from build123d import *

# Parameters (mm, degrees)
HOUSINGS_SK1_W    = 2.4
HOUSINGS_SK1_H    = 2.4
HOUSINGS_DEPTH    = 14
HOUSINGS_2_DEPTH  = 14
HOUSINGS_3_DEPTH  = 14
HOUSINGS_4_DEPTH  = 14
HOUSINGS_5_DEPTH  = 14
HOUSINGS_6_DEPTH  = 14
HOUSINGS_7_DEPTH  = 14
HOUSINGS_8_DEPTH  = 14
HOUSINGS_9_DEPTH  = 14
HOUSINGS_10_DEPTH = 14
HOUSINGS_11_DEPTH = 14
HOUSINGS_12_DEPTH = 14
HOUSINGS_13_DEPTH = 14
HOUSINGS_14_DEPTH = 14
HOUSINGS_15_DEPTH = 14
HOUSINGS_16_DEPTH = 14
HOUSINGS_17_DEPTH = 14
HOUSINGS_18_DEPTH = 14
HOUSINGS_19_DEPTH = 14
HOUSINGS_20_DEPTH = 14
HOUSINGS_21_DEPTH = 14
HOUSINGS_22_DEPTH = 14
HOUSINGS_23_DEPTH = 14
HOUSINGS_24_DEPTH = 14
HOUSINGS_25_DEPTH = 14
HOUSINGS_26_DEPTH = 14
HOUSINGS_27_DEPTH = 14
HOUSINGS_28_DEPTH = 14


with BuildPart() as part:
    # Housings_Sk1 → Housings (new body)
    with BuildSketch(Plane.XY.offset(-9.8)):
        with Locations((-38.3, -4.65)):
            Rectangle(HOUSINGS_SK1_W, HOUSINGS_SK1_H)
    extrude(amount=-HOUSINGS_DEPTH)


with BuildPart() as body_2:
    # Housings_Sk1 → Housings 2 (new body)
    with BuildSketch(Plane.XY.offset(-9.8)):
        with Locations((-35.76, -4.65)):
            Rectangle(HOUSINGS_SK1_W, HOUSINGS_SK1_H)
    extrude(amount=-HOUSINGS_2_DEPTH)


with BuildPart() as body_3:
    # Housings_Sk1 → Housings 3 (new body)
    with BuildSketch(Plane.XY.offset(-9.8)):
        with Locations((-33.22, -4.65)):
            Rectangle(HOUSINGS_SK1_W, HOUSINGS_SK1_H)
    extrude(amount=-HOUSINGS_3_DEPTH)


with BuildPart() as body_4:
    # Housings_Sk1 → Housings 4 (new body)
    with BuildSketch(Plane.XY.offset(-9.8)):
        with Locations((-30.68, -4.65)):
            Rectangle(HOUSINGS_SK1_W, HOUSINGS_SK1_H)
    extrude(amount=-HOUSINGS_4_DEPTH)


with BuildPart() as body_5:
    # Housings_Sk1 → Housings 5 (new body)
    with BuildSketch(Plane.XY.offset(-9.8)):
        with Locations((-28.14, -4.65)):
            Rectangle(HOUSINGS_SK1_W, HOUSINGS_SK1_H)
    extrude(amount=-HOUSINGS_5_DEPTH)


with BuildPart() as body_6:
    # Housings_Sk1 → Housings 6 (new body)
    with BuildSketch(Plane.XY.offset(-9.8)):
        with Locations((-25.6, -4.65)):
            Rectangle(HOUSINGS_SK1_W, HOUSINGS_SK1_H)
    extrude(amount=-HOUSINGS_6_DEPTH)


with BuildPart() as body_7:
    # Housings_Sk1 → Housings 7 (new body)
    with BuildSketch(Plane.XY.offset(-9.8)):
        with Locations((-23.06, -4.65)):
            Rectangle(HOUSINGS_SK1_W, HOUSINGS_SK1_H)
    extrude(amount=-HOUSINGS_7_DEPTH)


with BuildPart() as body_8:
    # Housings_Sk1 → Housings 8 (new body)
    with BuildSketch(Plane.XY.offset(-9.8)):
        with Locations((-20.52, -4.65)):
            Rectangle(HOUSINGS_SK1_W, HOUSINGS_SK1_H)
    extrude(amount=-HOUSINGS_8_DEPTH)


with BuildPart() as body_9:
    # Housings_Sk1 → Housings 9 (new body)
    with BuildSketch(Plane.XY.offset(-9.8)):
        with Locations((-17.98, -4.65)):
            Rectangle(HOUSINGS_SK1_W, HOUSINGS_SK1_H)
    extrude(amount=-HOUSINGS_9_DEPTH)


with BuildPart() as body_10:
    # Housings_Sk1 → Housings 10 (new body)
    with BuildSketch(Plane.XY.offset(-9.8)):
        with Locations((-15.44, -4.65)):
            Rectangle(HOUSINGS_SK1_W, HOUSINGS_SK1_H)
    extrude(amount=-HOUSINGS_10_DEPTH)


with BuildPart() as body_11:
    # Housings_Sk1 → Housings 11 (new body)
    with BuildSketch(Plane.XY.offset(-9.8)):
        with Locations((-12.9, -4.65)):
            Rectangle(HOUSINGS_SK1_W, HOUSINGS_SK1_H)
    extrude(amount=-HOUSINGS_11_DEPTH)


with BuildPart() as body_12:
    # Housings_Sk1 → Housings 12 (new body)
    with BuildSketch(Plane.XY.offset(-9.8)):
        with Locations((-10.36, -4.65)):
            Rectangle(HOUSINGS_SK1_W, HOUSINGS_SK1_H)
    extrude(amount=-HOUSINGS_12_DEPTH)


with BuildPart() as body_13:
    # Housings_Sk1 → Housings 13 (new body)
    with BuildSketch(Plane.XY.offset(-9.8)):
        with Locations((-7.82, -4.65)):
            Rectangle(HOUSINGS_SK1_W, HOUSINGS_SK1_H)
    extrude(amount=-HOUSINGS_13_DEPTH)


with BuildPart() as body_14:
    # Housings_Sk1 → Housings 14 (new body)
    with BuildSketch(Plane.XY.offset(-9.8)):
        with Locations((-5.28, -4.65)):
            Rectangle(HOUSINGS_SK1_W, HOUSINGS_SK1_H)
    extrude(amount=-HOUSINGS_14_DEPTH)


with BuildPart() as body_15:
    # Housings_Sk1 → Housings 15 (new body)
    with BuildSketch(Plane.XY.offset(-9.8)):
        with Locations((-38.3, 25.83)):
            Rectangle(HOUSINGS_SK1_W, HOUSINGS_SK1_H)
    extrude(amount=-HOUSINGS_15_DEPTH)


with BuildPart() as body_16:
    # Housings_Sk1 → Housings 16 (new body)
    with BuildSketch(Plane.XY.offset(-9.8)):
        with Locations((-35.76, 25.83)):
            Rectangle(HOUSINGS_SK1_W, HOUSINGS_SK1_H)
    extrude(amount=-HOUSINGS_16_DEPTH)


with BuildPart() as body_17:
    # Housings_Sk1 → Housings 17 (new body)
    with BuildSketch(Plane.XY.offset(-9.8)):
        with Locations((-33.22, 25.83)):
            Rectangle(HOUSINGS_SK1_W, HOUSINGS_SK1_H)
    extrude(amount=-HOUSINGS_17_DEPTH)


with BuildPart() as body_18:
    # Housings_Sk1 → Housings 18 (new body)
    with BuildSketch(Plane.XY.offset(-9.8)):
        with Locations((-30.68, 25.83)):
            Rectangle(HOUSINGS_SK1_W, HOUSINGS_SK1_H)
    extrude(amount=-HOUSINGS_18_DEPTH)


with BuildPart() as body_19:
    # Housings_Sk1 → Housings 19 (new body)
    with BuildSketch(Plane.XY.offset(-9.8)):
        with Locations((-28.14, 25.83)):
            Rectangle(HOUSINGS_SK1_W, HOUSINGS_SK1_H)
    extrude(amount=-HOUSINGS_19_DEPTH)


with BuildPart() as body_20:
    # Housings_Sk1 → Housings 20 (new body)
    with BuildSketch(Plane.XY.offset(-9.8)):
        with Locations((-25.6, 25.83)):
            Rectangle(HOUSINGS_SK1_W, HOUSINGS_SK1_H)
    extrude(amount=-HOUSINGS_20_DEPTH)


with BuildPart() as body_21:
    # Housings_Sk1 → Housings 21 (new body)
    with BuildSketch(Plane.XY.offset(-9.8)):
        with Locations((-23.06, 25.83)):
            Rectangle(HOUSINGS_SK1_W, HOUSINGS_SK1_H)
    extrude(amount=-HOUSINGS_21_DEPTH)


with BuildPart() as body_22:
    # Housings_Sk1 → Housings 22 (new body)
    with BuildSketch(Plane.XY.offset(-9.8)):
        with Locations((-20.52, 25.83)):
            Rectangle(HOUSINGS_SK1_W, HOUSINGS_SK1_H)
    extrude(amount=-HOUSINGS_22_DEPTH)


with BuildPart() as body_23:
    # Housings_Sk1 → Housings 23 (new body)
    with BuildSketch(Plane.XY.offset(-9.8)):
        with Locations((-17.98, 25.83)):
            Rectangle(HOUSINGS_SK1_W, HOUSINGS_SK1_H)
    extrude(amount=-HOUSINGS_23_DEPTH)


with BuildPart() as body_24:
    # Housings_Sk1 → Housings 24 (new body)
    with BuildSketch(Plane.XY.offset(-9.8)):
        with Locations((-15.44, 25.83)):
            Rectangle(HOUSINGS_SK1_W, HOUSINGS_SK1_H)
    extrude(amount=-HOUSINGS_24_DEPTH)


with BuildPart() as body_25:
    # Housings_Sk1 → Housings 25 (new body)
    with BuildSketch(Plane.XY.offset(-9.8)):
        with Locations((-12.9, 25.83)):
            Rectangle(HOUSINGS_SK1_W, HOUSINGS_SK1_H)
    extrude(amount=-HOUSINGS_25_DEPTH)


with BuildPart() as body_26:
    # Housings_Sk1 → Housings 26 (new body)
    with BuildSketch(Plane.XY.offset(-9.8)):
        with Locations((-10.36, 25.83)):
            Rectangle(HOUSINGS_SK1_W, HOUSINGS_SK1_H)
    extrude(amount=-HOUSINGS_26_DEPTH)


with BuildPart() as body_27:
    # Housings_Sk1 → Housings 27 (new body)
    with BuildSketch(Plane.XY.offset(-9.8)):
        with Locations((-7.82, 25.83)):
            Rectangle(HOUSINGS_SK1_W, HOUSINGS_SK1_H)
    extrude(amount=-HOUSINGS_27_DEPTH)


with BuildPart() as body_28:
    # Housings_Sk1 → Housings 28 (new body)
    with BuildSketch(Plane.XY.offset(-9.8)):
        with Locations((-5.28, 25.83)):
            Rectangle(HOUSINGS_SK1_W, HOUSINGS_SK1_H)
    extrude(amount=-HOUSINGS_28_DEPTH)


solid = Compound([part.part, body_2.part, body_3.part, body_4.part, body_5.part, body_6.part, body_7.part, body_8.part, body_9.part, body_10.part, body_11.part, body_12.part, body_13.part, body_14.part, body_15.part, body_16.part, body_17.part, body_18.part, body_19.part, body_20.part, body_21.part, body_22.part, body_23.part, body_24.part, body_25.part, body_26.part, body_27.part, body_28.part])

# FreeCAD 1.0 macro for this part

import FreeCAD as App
import Part
import Sketcher
from FreeCAD import Vector
Q = App.Units.Quantity


def add_polygon(sketch, points):
    """Adds a closed chain of lines whose ends are joined by coincident constraints."""
    first, n = sketch.GeometryCount, len(points)
    for a, b in zip(points, points[1:] + points[:1]):
        sketch.addGeometry(Part.LineSegment(App.Vector(*a, 0), App.Vector(*b, 0)), False)
    for i in range(n):
        sketch.addConstraint(Sketcher.Constraint("Coincident", first + i, 2, first + (i + 1) % n, 1))

doc = App.newDocument("Part")
body = doc.addObject("PartDesign::Body", "Body")

# Sketch on XY plane
sketch1 = doc.addObject("Sketcher::SketchObject", "Sketch")
body.addObject(sketch1)
sketch1.AttachmentSupport = (doc.XY_Plane, [""])
sketch1.MapMode = "FlatFace"
sketch1.AttachmentOffset = App.Placement(Vector(0, 0, -9.8), App.Rotation())
add_polygon(sketch1, [(-39.5, -3.45), (-39.5, -5.85), (-37.1, -5.85), (-37.1, -3.45)])  # lines 0-3
sketch1.addConstraint([
    Sketcher.Constraint("Vertical", 0),
    Sketcher.Constraint("Horizontal", 1),
    Sketcher.Constraint("Vertical", 2),
    Sketcher.Constraint("Horizontal", 3),
    Sketcher.Constraint("Equal", 3, 0),
    Sketcher.Constraint("DistanceX", 1, 1, 1, 2, Q("2.4 mm")),
    Sketcher.Constraint("DistanceX", 0, 2, -1, 1, Q("39.5 mm")),
    Sketcher.Constraint("DistanceY", 0, 2, -1, 1, Q("5.85 mm")),
])
pad1 = doc.addObject("PartDesign::Pad", "Pad")
body.addObject(pad1)
pad1.Profile = sketch1
pad1.Length = 14
pad1.Reversed = True
body2 = doc.addObject("PartDesign::Body", "Body001")

# Sketch on XY plane
sketch2 = doc.addObject("Sketcher::SketchObject", "Sketch001")
body2.addObject(sketch2)
sketch2.AttachmentSupport = (doc.getObject("XY_Plane001"), [""])
sketch2.MapMode = "FlatFace"
sketch2.AttachmentOffset = App.Placement(Vector(0, 0, -9.8), App.Rotation())
add_polygon(sketch2, [(-36.96, -3.45), (-36.96, -5.85), (-34.56, -5.85), (-34.56, -3.45)])  # lines 0-3
sketch2.addConstraint([
    Sketcher.Constraint("Vertical", 0),
    Sketcher.Constraint("Horizontal", 1),
    Sketcher.Constraint("Vertical", 2),
    Sketcher.Constraint("Horizontal", 3),
    Sketcher.Constraint("Equal", 3, 0),
    Sketcher.Constraint("DistanceX", 1, 1, 1, 2, Q("2.4 mm")),
    Sketcher.Constraint("DistanceX", 0, 2, -1, 1, Q("36.96 mm")),
    Sketcher.Constraint("DistanceY", 0, 2, -1, 1, Q("5.85 mm")),
])
pad2 = doc.addObject("PartDesign::Pad", "Pad001")
body2.addObject(pad2)
pad2.Profile = sketch2
pad2.Length = 14
pad2.Reversed = True
body3 = doc.addObject("PartDesign::Body", "Body002")

# Sketch on XY plane
sketch3 = doc.addObject("Sketcher::SketchObject", "Sketch002")
body3.addObject(sketch3)
sketch3.AttachmentSupport = (doc.getObject("XY_Plane002"), [""])
sketch3.MapMode = "FlatFace"
sketch3.AttachmentOffset = App.Placement(Vector(0, 0, -9.8), App.Rotation())
add_polygon(sketch3, [(-34.42, -3.45), (-34.42, -5.85), (-32.02, -5.85), (-32.02, -3.45)])  # lines 0-3
sketch3.addConstraint([
    Sketcher.Constraint("Vertical", 0),
    Sketcher.Constraint("Horizontal", 1),
    Sketcher.Constraint("Vertical", 2),
    Sketcher.Constraint("Horizontal", 3),
    Sketcher.Constraint("Equal", 3, 0),
    Sketcher.Constraint("DistanceX", 1, 1, 1, 2, Q("2.4 mm")),
    Sketcher.Constraint("DistanceX", 0, 2, -1, 1, Q("34.42 mm")),
    Sketcher.Constraint("DistanceY", 0, 2, -1, 1, Q("5.85 mm")),
])
pad3 = doc.addObject("PartDesign::Pad", "Pad002")
body3.addObject(pad3)
pad3.Profile = sketch3
pad3.Length = 14
pad3.Reversed = True
body4 = doc.addObject("PartDesign::Body", "Body003")

# Sketch on XY plane
sketch4 = doc.addObject("Sketcher::SketchObject", "Sketch003")
body4.addObject(sketch4)
sketch4.AttachmentSupport = (doc.getObject("XY_Plane003"), [""])
sketch4.MapMode = "FlatFace"
sketch4.AttachmentOffset = App.Placement(Vector(0, 0, -9.8), App.Rotation())
add_polygon(sketch4, [(-31.88, -3.45), (-31.88, -5.85), (-29.48, -5.85), (-29.48, -3.45)])  # lines 0-3
sketch4.addConstraint([
    Sketcher.Constraint("Vertical", 0),
    Sketcher.Constraint("Horizontal", 1),
    Sketcher.Constraint("Vertical", 2),
    Sketcher.Constraint("Horizontal", 3),
    Sketcher.Constraint("Equal", 3, 0),
    Sketcher.Constraint("DistanceX", 1, 1, 1, 2, Q("2.4 mm")),
    Sketcher.Constraint("DistanceX", 0, 2, -1, 1, Q("31.88 mm")),
    Sketcher.Constraint("DistanceY", 0, 2, -1, 1, Q("5.85 mm")),
])
pad4 = doc.addObject("PartDesign::Pad", "Pad003")
body4.addObject(pad4)
pad4.Profile = sketch4
pad4.Length = 14
pad4.Reversed = True
body5 = doc.addObject("PartDesign::Body", "Body004")

# Sketch on XY plane
sketch5 = doc.addObject("Sketcher::SketchObject", "Sketch004")
body5.addObject(sketch5)
sketch5.AttachmentSupport = (doc.getObject("XY_Plane004"), [""])
sketch5.MapMode = "FlatFace"
sketch5.AttachmentOffset = App.Placement(Vector(0, 0, -9.8), App.Rotation())
add_polygon(sketch5, [(-29.34, -3.45), (-29.34, -5.85), (-26.94, -5.85), (-26.94, -3.45)])  # lines 0-3
sketch5.addConstraint([
    Sketcher.Constraint("Vertical", 0),
    Sketcher.Constraint("Horizontal", 1),
    Sketcher.Constraint("Vertical", 2),
    Sketcher.Constraint("Horizontal", 3),
    Sketcher.Constraint("Equal", 3, 0),
    Sketcher.Constraint("DistanceX", 1, 1, 1, 2, Q("2.4 mm")),
    Sketcher.Constraint("DistanceX", 0, 2, -1, 1, Q("29.34 mm")),
    Sketcher.Constraint("DistanceY", 0, 2, -1, 1, Q("5.85 mm")),
])
pad5 = doc.addObject("PartDesign::Pad", "Pad004")
body5.addObject(pad5)
pad5.Profile = sketch5
pad5.Length = 14
pad5.Reversed = True
body6 = doc.addObject("PartDesign::Body", "Body005")

# Sketch on XY plane
sketch6 = doc.addObject("Sketcher::SketchObject", "Sketch005")
body6.addObject(sketch6)
sketch6.AttachmentSupport = (doc.getObject("XY_Plane005"), [""])
sketch6.MapMode = "FlatFace"
sketch6.AttachmentOffset = App.Placement(Vector(0, 0, -9.8), App.Rotation())
add_polygon(sketch6, [(-26.8, -3.45), (-26.8, -5.85), (-24.4, -5.85), (-24.4, -3.45)])  # lines 0-3
sketch6.addConstraint([
    Sketcher.Constraint("Vertical", 0),
    Sketcher.Constraint("Horizontal", 1),
    Sketcher.Constraint("Vertical", 2),
    Sketcher.Constraint("Horizontal", 3),
    Sketcher.Constraint("Equal", 3, 0),
    Sketcher.Constraint("DistanceX", 1, 1, 1, 2, Q("2.4 mm")),
    Sketcher.Constraint("DistanceX", 0, 2, -1, 1, Q("26.8 mm")),
    Sketcher.Constraint("DistanceY", 0, 2, -1, 1, Q("5.85 mm")),
])
pad6 = doc.addObject("PartDesign::Pad", "Pad005")
body6.addObject(pad6)
pad6.Profile = sketch6
pad6.Length = 14
pad6.Reversed = True
body7 = doc.addObject("PartDesign::Body", "Body006")

# Sketch on XY plane
sketch7 = doc.addObject("Sketcher::SketchObject", "Sketch006")
body7.addObject(sketch7)
sketch7.AttachmentSupport = (doc.getObject("XY_Plane006"), [""])
sketch7.MapMode = "FlatFace"
sketch7.AttachmentOffset = App.Placement(Vector(0, 0, -9.8), App.Rotation())
add_polygon(sketch7, [(-24.26, -3.45), (-24.26, -5.85), (-21.86, -5.85), (-21.86, -3.45)])  # lines 0-3
sketch7.addConstraint([
    Sketcher.Constraint("Vertical", 0),
    Sketcher.Constraint("Horizontal", 1),
    Sketcher.Constraint("Vertical", 2),
    Sketcher.Constraint("Horizontal", 3),
    Sketcher.Constraint("Equal", 3, 0),
    Sketcher.Constraint("DistanceX", 1, 1, 1, 2, Q("2.4 mm")),
    Sketcher.Constraint("DistanceX", 0, 2, -1, 1, Q("24.26 mm")),
    Sketcher.Constraint("DistanceY", 0, 2, -1, 1, Q("5.85 mm")),
])
pad7 = doc.addObject("PartDesign::Pad", "Pad006")
body7.addObject(pad7)
pad7.Profile = sketch7
pad7.Length = 14
pad7.Reversed = True
body8 = doc.addObject("PartDesign::Body", "Body007")

# Sketch on XY plane
sketch8 = doc.addObject("Sketcher::SketchObject", "Sketch007")
body8.addObject(sketch8)
sketch8.AttachmentSupport = (doc.getObject("XY_Plane007"), [""])
sketch8.MapMode = "FlatFace"
sketch8.AttachmentOffset = App.Placement(Vector(0, 0, -9.8), App.Rotation())
add_polygon(sketch8, [(-21.72, -3.45), (-21.72, -5.85), (-19.32, -5.85), (-19.32, -3.45)])  # lines 0-3
sketch8.addConstraint([
    Sketcher.Constraint("Vertical", 0),
    Sketcher.Constraint("Horizontal", 1),
    Sketcher.Constraint("Vertical", 2),
    Sketcher.Constraint("Horizontal", 3),
    Sketcher.Constraint("Equal", 3, 0),
    Sketcher.Constraint("DistanceX", 1, 1, 1, 2, Q("2.4 mm")),
    Sketcher.Constraint("DistanceX", 0, 2, -1, 1, Q("21.72 mm")),
    Sketcher.Constraint("DistanceY", 0, 2, -1, 1, Q("5.85 mm")),
])
pad8 = doc.addObject("PartDesign::Pad", "Pad007")
body8.addObject(pad8)
pad8.Profile = sketch8
pad8.Length = 14
pad8.Reversed = True
body9 = doc.addObject("PartDesign::Body", "Body008")

# Sketch on XY plane
sketch9 = doc.addObject("Sketcher::SketchObject", "Sketch008")
body9.addObject(sketch9)
sketch9.AttachmentSupport = (doc.getObject("XY_Plane008"), [""])
sketch9.MapMode = "FlatFace"
sketch9.AttachmentOffset = App.Placement(Vector(0, 0, -9.8), App.Rotation())
add_polygon(sketch9, [(-19.18, -3.45), (-19.18, -5.85), (-16.78, -5.85), (-16.78, -3.45)])  # lines 0-3
sketch9.addConstraint([
    Sketcher.Constraint("Vertical", 0),
    Sketcher.Constraint("Horizontal", 1),
    Sketcher.Constraint("Vertical", 2),
    Sketcher.Constraint("Horizontal", 3),
    Sketcher.Constraint("Equal", 3, 0),
    Sketcher.Constraint("DistanceX", 1, 1, 1, 2, Q("2.4 mm")),
    Sketcher.Constraint("DistanceX", 0, 2, -1, 1, Q("19.18 mm")),
    Sketcher.Constraint("DistanceY", 0, 2, -1, 1, Q("5.85 mm")),
])
pad9 = doc.addObject("PartDesign::Pad", "Pad008")
body9.addObject(pad9)
pad9.Profile = sketch9
pad9.Length = 14
pad9.Reversed = True
body10 = doc.addObject("PartDesign::Body", "Body009")

# Sketch on XY plane
sketch10 = doc.addObject("Sketcher::SketchObject", "Sketch009")
body10.addObject(sketch10)
sketch10.AttachmentSupport = (doc.getObject("XY_Plane009"), [""])
sketch10.MapMode = "FlatFace"
sketch10.AttachmentOffset = App.Placement(Vector(0, 0, -9.8), App.Rotation())
add_polygon(sketch10, [(-16.64, -3.45), (-16.64, -5.85), (-14.24, -5.85), (-14.24, -3.45)])  # lines 0-3
sketch10.addConstraint([
    Sketcher.Constraint("Vertical", 0),
    Sketcher.Constraint("Horizontal", 1),
    Sketcher.Constraint("Vertical", 2),
    Sketcher.Constraint("Horizontal", 3),
    Sketcher.Constraint("Equal", 3, 0),
    Sketcher.Constraint("DistanceX", 1, 1, 1, 2, Q("2.4 mm")),
    Sketcher.Constraint("DistanceX", 0, 2, -1, 1, Q("16.64 mm")),
    Sketcher.Constraint("DistanceY", 0, 2, -1, 1, Q("5.85 mm")),
])
pad10 = doc.addObject("PartDesign::Pad", "Pad009")
body10.addObject(pad10)
pad10.Profile = sketch10
pad10.Length = 14
pad10.Reversed = True
body11 = doc.addObject("PartDesign::Body", "Body010")

# Sketch on XY plane
sketch11 = doc.addObject("Sketcher::SketchObject", "Sketch010")
body11.addObject(sketch11)
sketch11.AttachmentSupport = (doc.getObject("XY_Plane010"), [""])
sketch11.MapMode = "FlatFace"
sketch11.AttachmentOffset = App.Placement(Vector(0, 0, -9.8), App.Rotation())
add_polygon(sketch11, [(-14.1, -3.45), (-14.1, -5.85), (-11.7, -5.85), (-11.7, -3.45)])  # lines 0-3
sketch11.addConstraint([
    Sketcher.Constraint("Vertical", 0),
    Sketcher.Constraint("Horizontal", 1),
    Sketcher.Constraint("Vertical", 2),
    Sketcher.Constraint("Horizontal", 3),
    Sketcher.Constraint("Equal", 3, 0),
    Sketcher.Constraint("DistanceX", 1, 1, 1, 2, Q("2.4 mm")),
    Sketcher.Constraint("DistanceX", 0, 2, -1, 1, Q("14.1 mm")),
    Sketcher.Constraint("DistanceY", 0, 2, -1, 1, Q("5.85 mm")),
])
pad11 = doc.addObject("PartDesign::Pad", "Pad010")
body11.addObject(pad11)
pad11.Profile = sketch11
pad11.Length = 14
pad11.Reversed = True
body12 = doc.addObject("PartDesign::Body", "Body011")

# Sketch on XY plane
sketch12 = doc.addObject("Sketcher::SketchObject", "Sketch011")
body12.addObject(sketch12)
sketch12.AttachmentSupport = (doc.getObject("XY_Plane011"), [""])
sketch12.MapMode = "FlatFace"
sketch12.AttachmentOffset = App.Placement(Vector(0, 0, -9.8), App.Rotation())
add_polygon(sketch12, [(-11.56, -3.45), (-11.56, -5.85), (-9.16, -5.85), (-9.16, -3.45)])  # lines 0-3
sketch12.addConstraint([
    Sketcher.Constraint("Vertical", 0),
    Sketcher.Constraint("Horizontal", 1),
    Sketcher.Constraint("Vertical", 2),
    Sketcher.Constraint("Horizontal", 3),
    Sketcher.Constraint("Equal", 3, 0),
    Sketcher.Constraint("DistanceX", 1, 1, 1, 2, Q("2.4 mm")),
    Sketcher.Constraint("DistanceX", 0, 2, -1, 1, Q("11.56 mm")),
    Sketcher.Constraint("DistanceY", 0, 2, -1, 1, Q("5.85 mm")),
])
pad12 = doc.addObject("PartDesign::Pad", "Pad011")
body12.addObject(pad12)
pad12.Profile = sketch12
pad12.Length = 14
pad12.Reversed = True
body13 = doc.addObject("PartDesign::Body", "Body012")

# Sketch on XY plane
sketch13 = doc.addObject("Sketcher::SketchObject", "Sketch012")
body13.addObject(sketch13)
sketch13.AttachmentSupport = (doc.getObject("XY_Plane012"), [""])
sketch13.MapMode = "FlatFace"
sketch13.AttachmentOffset = App.Placement(Vector(0, 0, -9.8), App.Rotation())
add_polygon(sketch13, [(-9.02, -3.45), (-9.02, -5.85), (-6.62, -5.85), (-6.62, -3.45)])  # lines 0-3
sketch13.addConstraint([
    Sketcher.Constraint("Vertical", 0),
    Sketcher.Constraint("Horizontal", 1),
    Sketcher.Constraint("Vertical", 2),
    Sketcher.Constraint("Horizontal", 3),
    Sketcher.Constraint("Equal", 3, 0),
    Sketcher.Constraint("DistanceX", 1, 1, 1, 2, Q("2.4 mm")),
    Sketcher.Constraint("DistanceX", 0, 2, -1, 1, Q("9.02 mm")),
    Sketcher.Constraint("DistanceY", 0, 2, -1, 1, Q("5.85 mm")),
])
pad13 = doc.addObject("PartDesign::Pad", "Pad012")
body13.addObject(pad13)
pad13.Profile = sketch13
pad13.Length = 14
pad13.Reversed = True
body14 = doc.addObject("PartDesign::Body", "Body013")

# Sketch on XY plane
sketch14 = doc.addObject("Sketcher::SketchObject", "Sketch013")
body14.addObject(sketch14)
sketch14.AttachmentSupport = (doc.getObject("XY_Plane013"), [""])
sketch14.MapMode = "FlatFace"
sketch14.AttachmentOffset = App.Placement(Vector(0, 0, -9.8), App.Rotation())
add_polygon(sketch14, [(-6.48, -3.45), (-6.48, -5.85), (-4.08, -5.85), (-4.08, -3.45)])  # lines 0-3
sketch14.addConstraint([
    Sketcher.Constraint("Vertical", 0),
    Sketcher.Constraint("Horizontal", 1),
    Sketcher.Constraint("Vertical", 2),
    Sketcher.Constraint("Horizontal", 3),
    Sketcher.Constraint("Equal", 3, 0),
    Sketcher.Constraint("DistanceX", 1, 1, 1, 2, Q("2.4 mm")),
    Sketcher.Constraint("DistanceX", 0, 2, -1, 1, Q("6.48 mm")),
    Sketcher.Constraint("DistanceY", 0, 2, -1, 1, Q("5.85 mm")),
])
pad14 = doc.addObject("PartDesign::Pad", "Pad013")
body14.addObject(pad14)
pad14.Profile = sketch14
pad14.Length = 14
pad14.Reversed = True
body15 = doc.addObject("PartDesign::Body", "Body014")

# Sketch on XY plane
sketch15 = doc.addObject("Sketcher::SketchObject", "Sketch014")
body15.addObject(sketch15)
sketch15.AttachmentSupport = (doc.getObject("XY_Plane014"), [""])
sketch15.MapMode = "FlatFace"
sketch15.AttachmentOffset = App.Placement(Vector(0, 0, -9.8), App.Rotation())
add_polygon(sketch15, [(-39.5, 27.03), (-39.5, 24.63), (-37.1, 24.63), (-37.1, 27.03)])  # lines 0-3
sketch15.addConstraint([
    Sketcher.Constraint("Vertical", 0),
    Sketcher.Constraint("Horizontal", 1),
    Sketcher.Constraint("Vertical", 2),
    Sketcher.Constraint("Horizontal", 3),
    Sketcher.Constraint("Equal", 3, 0),
    Sketcher.Constraint("DistanceX", 1, 1, 1, 2, Q("2.4 mm")),
    Sketcher.Constraint("DistanceX", 0, 2, -1, 1, Q("39.5 mm")),
    Sketcher.Constraint("DistanceY", -1, 1, 0, 2, Q("24.63 mm")),
])
pad15 = doc.addObject("PartDesign::Pad", "Pad014")
body15.addObject(pad15)
pad15.Profile = sketch15
pad15.Length = 14
pad15.Reversed = True
body16 = doc.addObject("PartDesign::Body", "Body015")

# Sketch on XY plane
sketch16 = doc.addObject("Sketcher::SketchObject", "Sketch015")
body16.addObject(sketch16)
sketch16.AttachmentSupport = (doc.getObject("XY_Plane015"), [""])
sketch16.MapMode = "FlatFace"
sketch16.AttachmentOffset = App.Placement(Vector(0, 0, -9.8), App.Rotation())
add_polygon(sketch16, [(-36.96, 27.03), (-36.96, 24.63), (-34.56, 24.63), (-34.56, 27.03)])  # lines 0-3
sketch16.addConstraint([
    Sketcher.Constraint("Vertical", 0),
    Sketcher.Constraint("Horizontal", 1),
    Sketcher.Constraint("Vertical", 2),
    Sketcher.Constraint("Horizontal", 3),
    Sketcher.Constraint("Equal", 3, 0),
    Sketcher.Constraint("DistanceX", 1, 1, 1, 2, Q("2.4 mm")),
    Sketcher.Constraint("DistanceX", 0, 2, -1, 1, Q("36.96 mm")),
    Sketcher.Constraint("DistanceY", -1, 1, 0, 2, Q("24.63 mm")),
])
pad16 = doc.addObject("PartDesign::Pad", "Pad015")
body16.addObject(pad16)
pad16.Profile = sketch16
pad16.Length = 14
pad16.Reversed = True
body17 = doc.addObject("PartDesign::Body", "Body016")

# Sketch on XY plane
sketch17 = doc.addObject("Sketcher::SketchObject", "Sketch016")
body17.addObject(sketch17)
sketch17.AttachmentSupport = (doc.getObject("XY_Plane016"), [""])
sketch17.MapMode = "FlatFace"
sketch17.AttachmentOffset = App.Placement(Vector(0, 0, -9.8), App.Rotation())
add_polygon(sketch17, [(-34.42, 27.03), (-34.42, 24.63), (-32.02, 24.63), (-32.02, 27.03)])  # lines 0-3
sketch17.addConstraint([
    Sketcher.Constraint("Vertical", 0),
    Sketcher.Constraint("Horizontal", 1),
    Sketcher.Constraint("Vertical", 2),
    Sketcher.Constraint("Horizontal", 3),
    Sketcher.Constraint("Equal", 3, 0),
    Sketcher.Constraint("DistanceX", 1, 1, 1, 2, Q("2.4 mm")),
    Sketcher.Constraint("DistanceX", 0, 2, -1, 1, Q("34.42 mm")),
    Sketcher.Constraint("DistanceY", -1, 1, 0, 2, Q("24.63 mm")),
])
pad17 = doc.addObject("PartDesign::Pad", "Pad016")
body17.addObject(pad17)
pad17.Profile = sketch17
pad17.Length = 14
pad17.Reversed = True
body18 = doc.addObject("PartDesign::Body", "Body017")

# Sketch on XY plane
sketch18 = doc.addObject("Sketcher::SketchObject", "Sketch017")
body18.addObject(sketch18)
sketch18.AttachmentSupport = (doc.getObject("XY_Plane017"), [""])
sketch18.MapMode = "FlatFace"
sketch18.AttachmentOffset = App.Placement(Vector(0, 0, -9.8), App.Rotation())
add_polygon(sketch18, [(-31.88, 27.03), (-31.88, 24.63), (-29.48, 24.63), (-29.48, 27.03)])  # lines 0-3
sketch18.addConstraint([
    Sketcher.Constraint("Vertical", 0),
    Sketcher.Constraint("Horizontal", 1),
    Sketcher.Constraint("Vertical", 2),
    Sketcher.Constraint("Horizontal", 3),
    Sketcher.Constraint("Equal", 3, 0),
    Sketcher.Constraint("DistanceX", 1, 1, 1, 2, Q("2.4 mm")),
    Sketcher.Constraint("DistanceX", 0, 2, -1, 1, Q("31.88 mm")),
    Sketcher.Constraint("DistanceY", -1, 1, 0, 2, Q("24.63 mm")),
])
pad18 = doc.addObject("PartDesign::Pad", "Pad017")
body18.addObject(pad18)
pad18.Profile = sketch18
pad18.Length = 14
pad18.Reversed = True
body19 = doc.addObject("PartDesign::Body", "Body018")

# Sketch on XY plane
sketch19 = doc.addObject("Sketcher::SketchObject", "Sketch018")
body19.addObject(sketch19)
sketch19.AttachmentSupport = (doc.getObject("XY_Plane018"), [""])
sketch19.MapMode = "FlatFace"
sketch19.AttachmentOffset = App.Placement(Vector(0, 0, -9.8), App.Rotation())
add_polygon(sketch19, [(-29.34, 27.03), (-29.34, 24.63), (-26.94, 24.63), (-26.94, 27.03)])  # lines 0-3
sketch19.addConstraint([
    Sketcher.Constraint("Vertical", 0),
    Sketcher.Constraint("Horizontal", 1),
    Sketcher.Constraint("Vertical", 2),
    Sketcher.Constraint("Horizontal", 3),
    Sketcher.Constraint("Equal", 3, 0),
    Sketcher.Constraint("DistanceX", 1, 1, 1, 2, Q("2.4 mm")),
    Sketcher.Constraint("DistanceX", 0, 2, -1, 1, Q("29.34 mm")),
    Sketcher.Constraint("DistanceY", -1, 1, 0, 2, Q("24.63 mm")),
])
pad19 = doc.addObject("PartDesign::Pad", "Pad018")
body19.addObject(pad19)
pad19.Profile = sketch19
pad19.Length = 14
pad19.Reversed = True
body20 = doc.addObject("PartDesign::Body", "Body019")

# Sketch on XY plane
sketch20 = doc.addObject("Sketcher::SketchObject", "Sketch019")
body20.addObject(sketch20)
sketch20.AttachmentSupport = (doc.getObject("XY_Plane019"), [""])
sketch20.MapMode = "FlatFace"
sketch20.AttachmentOffset = App.Placement(Vector(0, 0, -9.8), App.Rotation())
add_polygon(sketch20, [(-26.8, 27.03), (-26.8, 24.63), (-24.4, 24.63), (-24.4, 27.03)])  # lines 0-3
sketch20.addConstraint([
    Sketcher.Constraint("Vertical", 0),
    Sketcher.Constraint("Horizontal", 1),
    Sketcher.Constraint("Vertical", 2),
    Sketcher.Constraint("Horizontal", 3),
    Sketcher.Constraint("Equal", 3, 0),
    Sketcher.Constraint("DistanceX", 1, 1, 1, 2, Q("2.4 mm")),
    Sketcher.Constraint("DistanceX", 0, 2, -1, 1, Q("26.8 mm")),
    Sketcher.Constraint("DistanceY", -1, 1, 0, 2, Q("24.63 mm")),
])
pad20 = doc.addObject("PartDesign::Pad", "Pad019")
body20.addObject(pad20)
pad20.Profile = sketch20
pad20.Length = 14
pad20.Reversed = True
body21 = doc.addObject("PartDesign::Body", "Body020")

# Sketch on XY plane
sketch21 = doc.addObject("Sketcher::SketchObject", "Sketch020")
body21.addObject(sketch21)
sketch21.AttachmentSupport = (doc.getObject("XY_Plane020"), [""])
sketch21.MapMode = "FlatFace"
sketch21.AttachmentOffset = App.Placement(Vector(0, 0, -9.8), App.Rotation())
add_polygon(sketch21, [(-24.26, 27.03), (-24.26, 24.63), (-21.86, 24.63), (-21.86, 27.03)])  # lines 0-3
sketch21.addConstraint([
    Sketcher.Constraint("Vertical", 0),
    Sketcher.Constraint("Horizontal", 1),
    Sketcher.Constraint("Vertical", 2),
    Sketcher.Constraint("Horizontal", 3),
    Sketcher.Constraint("Equal", 3, 0),
    Sketcher.Constraint("DistanceX", 1, 1, 1, 2, Q("2.4 mm")),
    Sketcher.Constraint("DistanceX", 0, 2, -1, 1, Q("24.26 mm")),
    Sketcher.Constraint("DistanceY", -1, 1, 0, 2, Q("24.63 mm")),
])
pad21 = doc.addObject("PartDesign::Pad", "Pad020")
body21.addObject(pad21)
pad21.Profile = sketch21
pad21.Length = 14
pad21.Reversed = True
body22 = doc.addObject("PartDesign::Body", "Body021")

# Sketch on XY plane
sketch22 = doc.addObject("Sketcher::SketchObject", "Sketch021")
body22.addObject(sketch22)
sketch22.AttachmentSupport = (doc.getObject("XY_Plane021"), [""])
sketch22.MapMode = "FlatFace"
sketch22.AttachmentOffset = App.Placement(Vector(0, 0, -9.8), App.Rotation())
add_polygon(sketch22, [(-21.72, 27.03), (-21.72, 24.63), (-19.32, 24.63), (-19.32, 27.03)])  # lines 0-3
sketch22.addConstraint([
    Sketcher.Constraint("Vertical", 0),
    Sketcher.Constraint("Horizontal", 1),
    Sketcher.Constraint("Vertical", 2),
    Sketcher.Constraint("Horizontal", 3),
    Sketcher.Constraint("Equal", 3, 0),
    Sketcher.Constraint("DistanceX", 1, 1, 1, 2, Q("2.4 mm")),
    Sketcher.Constraint("DistanceX", 0, 2, -1, 1, Q("21.72 mm")),
    Sketcher.Constraint("DistanceY", -1, 1, 0, 2, Q("24.63 mm")),
])
pad22 = doc.addObject("PartDesign::Pad", "Pad021")
body22.addObject(pad22)
pad22.Profile = sketch22
pad22.Length = 14
pad22.Reversed = True
body23 = doc.addObject("PartDesign::Body", "Body022")

# Sketch on XY plane
sketch23 = doc.addObject("Sketcher::SketchObject", "Sketch022")
body23.addObject(sketch23)
sketch23.AttachmentSupport = (doc.getObject("XY_Plane022"), [""])
sketch23.MapMode = "FlatFace"
sketch23.AttachmentOffset = App.Placement(Vector(0, 0, -9.8), App.Rotation())
add_polygon(sketch23, [(-19.18, 27.03), (-19.18, 24.63), (-16.78, 24.63), (-16.78, 27.03)])  # lines 0-3
sketch23.addConstraint([
    Sketcher.Constraint("Vertical", 0),
    Sketcher.Constraint("Horizontal", 1),
    Sketcher.Constraint("Vertical", 2),
    Sketcher.Constraint("Horizontal", 3),
    Sketcher.Constraint("Equal", 3, 0),
    Sketcher.Constraint("DistanceX", 1, 1, 1, 2, Q("2.4 mm")),
    Sketcher.Constraint("DistanceX", 0, 2, -1, 1, Q("19.18 mm")),
    Sketcher.Constraint("DistanceY", -1, 1, 0, 2, Q("24.63 mm")),
])
pad23 = doc.addObject("PartDesign::Pad", "Pad022")
body23.addObject(pad23)
pad23.Profile = sketch23
pad23.Length = 14
pad23.Reversed = True
body24 = doc.addObject("PartDesign::Body", "Body023")

# Sketch on XY plane
sketch24 = doc.addObject("Sketcher::SketchObject", "Sketch023")
body24.addObject(sketch24)
sketch24.AttachmentSupport = (doc.getObject("XY_Plane023"), [""])
sketch24.MapMode = "FlatFace"
sketch24.AttachmentOffset = App.Placement(Vector(0, 0, -9.8), App.Rotation())
add_polygon(sketch24, [(-16.64, 27.03), (-16.64, 24.63), (-14.24, 24.63), (-14.24, 27.03)])  # lines 0-3
sketch24.addConstraint([
    Sketcher.Constraint("Vertical", 0),
    Sketcher.Constraint("Horizontal", 1),
    Sketcher.Constraint("Vertical", 2),
    Sketcher.Constraint("Horizontal", 3),
    Sketcher.Constraint("Equal", 3, 0),
    Sketcher.Constraint("DistanceX", 1, 1, 1, 2, Q("2.4 mm")),
    Sketcher.Constraint("DistanceX", 0, 2, -1, 1, Q("16.64 mm")),
    Sketcher.Constraint("DistanceY", -1, 1, 0, 2, Q("24.63 mm")),
])
pad24 = doc.addObject("PartDesign::Pad", "Pad023")
body24.addObject(pad24)
pad24.Profile = sketch24
pad24.Length = 14
pad24.Reversed = True
body25 = doc.addObject("PartDesign::Body", "Body024")

# Sketch on XY plane
sketch25 = doc.addObject("Sketcher::SketchObject", "Sketch024")
body25.addObject(sketch25)
sketch25.AttachmentSupport = (doc.getObject("XY_Plane024"), [""])
sketch25.MapMode = "FlatFace"
sketch25.AttachmentOffset = App.Placement(Vector(0, 0, -9.8), App.Rotation())
add_polygon(sketch25, [(-14.1, 27.03), (-14.1, 24.63), (-11.7, 24.63), (-11.7, 27.03)])  # lines 0-3
sketch25.addConstraint([
    Sketcher.Constraint("Vertical", 0),
    Sketcher.Constraint("Horizontal", 1),
    Sketcher.Constraint("Vertical", 2),
    Sketcher.Constraint("Horizontal", 3),
    Sketcher.Constraint("Equal", 3, 0),
    Sketcher.Constraint("DistanceX", 1, 1, 1, 2, Q("2.4 mm")),
    Sketcher.Constraint("DistanceX", 0, 2, -1, 1, Q("14.1 mm")),
    Sketcher.Constraint("DistanceY", -1, 1, 0, 2, Q("24.63 mm")),
])
pad25 = doc.addObject("PartDesign::Pad", "Pad024")
body25.addObject(pad25)
pad25.Profile = sketch25
pad25.Length = 14
pad25.Reversed = True
body26 = doc.addObject("PartDesign::Body", "Body025")

# Sketch on XY plane
sketch26 = doc.addObject("Sketcher::SketchObject", "Sketch025")
body26.addObject(sketch26)
sketch26.AttachmentSupport = (doc.getObject("XY_Plane025"), [""])
sketch26.MapMode = "FlatFace"
sketch26.AttachmentOffset = App.Placement(Vector(0, 0, -9.8), App.Rotation())
add_polygon(sketch26, [(-11.56, 27.03), (-11.56, 24.63), (-9.16, 24.63), (-9.16, 27.03)])  # lines 0-3
sketch26.addConstraint([
    Sketcher.Constraint("Vertical", 0),
    Sketcher.Constraint("Horizontal", 1),
    Sketcher.Constraint("Vertical", 2),
    Sketcher.Constraint("Horizontal", 3),
    Sketcher.Constraint("Equal", 3, 0),
    Sketcher.Constraint("DistanceX", 1, 1, 1, 2, Q("2.4 mm")),
    Sketcher.Constraint("DistanceX", 0, 2, -1, 1, Q("11.56 mm")),
    Sketcher.Constraint("DistanceY", -1, 1, 0, 2, Q("24.63 mm")),
])
pad26 = doc.addObject("PartDesign::Pad", "Pad025")
body26.addObject(pad26)
pad26.Profile = sketch26
pad26.Length = 14
pad26.Reversed = True
body27 = doc.addObject("PartDesign::Body", "Body026")

# Sketch on XY plane
sketch27 = doc.addObject("Sketcher::SketchObject", "Sketch026")
body27.addObject(sketch27)
sketch27.AttachmentSupport = (doc.getObject("XY_Plane026"), [""])
sketch27.MapMode = "FlatFace"
sketch27.AttachmentOffset = App.Placement(Vector(0, 0, -9.8), App.Rotation())
add_polygon(sketch27, [(-9.02, 27.03), (-9.02, 24.63), (-6.62, 24.63), (-6.62, 27.03)])  # lines 0-3
sketch27.addConstraint([
    Sketcher.Constraint("Vertical", 0),
    Sketcher.Constraint("Horizontal", 1),
    Sketcher.Constraint("Vertical", 2),
    Sketcher.Constraint("Horizontal", 3),
    Sketcher.Constraint("Equal", 3, 0),
    Sketcher.Constraint("DistanceX", 1, 1, 1, 2, Q("2.4 mm")),
    Sketcher.Constraint("DistanceX", 0, 2, -1, 1, Q("9.02 mm")),
    Sketcher.Constraint("DistanceY", -1, 1, 0, 2, Q("24.63 mm")),
])
pad27 = doc.addObject("PartDesign::Pad", "Pad026")
body27.addObject(pad27)
pad27.Profile = sketch27
pad27.Length = 14
pad27.Reversed = True
body28 = doc.addObject("PartDesign::Body", "Body027")

# Sketch on XY plane
sketch28 = doc.addObject("Sketcher::SketchObject", "Sketch027")
body28.addObject(sketch28)
sketch28.AttachmentSupport = (doc.getObject("XY_Plane027"), [""])
sketch28.MapMode = "FlatFace"
sketch28.AttachmentOffset = App.Placement(Vector(0, 0, -9.8), App.Rotation())
add_polygon(sketch28, [(-6.48, 27.03), (-6.48, 24.63), (-4.08, 24.63), (-4.08, 27.03)])  # lines 0-3
sketch28.addConstraint([
    Sketcher.Constraint("Vertical", 0),
    Sketcher.Constraint("Horizontal", 1),
    Sketcher.Constraint("Vertical", 2),
    Sketcher.Constraint("Horizontal", 3),
    Sketcher.Constraint("Equal", 3, 0),
    Sketcher.Constraint("DistanceX", 1, 1, 1, 2, Q("2.4 mm")),
    Sketcher.Constraint("DistanceX", 0, 2, -1, 1, Q("6.48 mm")),
    Sketcher.Constraint("DistanceY", -1, 1, 0, 2, Q("24.63 mm")),
])
pad28 = doc.addObject("PartDesign::Pad", "Pad027")
body28.addObject(pad28)
pad28.Profile = sketch28
pad28.Length = 14
pad28.Reversed = True

doc.recompute()
